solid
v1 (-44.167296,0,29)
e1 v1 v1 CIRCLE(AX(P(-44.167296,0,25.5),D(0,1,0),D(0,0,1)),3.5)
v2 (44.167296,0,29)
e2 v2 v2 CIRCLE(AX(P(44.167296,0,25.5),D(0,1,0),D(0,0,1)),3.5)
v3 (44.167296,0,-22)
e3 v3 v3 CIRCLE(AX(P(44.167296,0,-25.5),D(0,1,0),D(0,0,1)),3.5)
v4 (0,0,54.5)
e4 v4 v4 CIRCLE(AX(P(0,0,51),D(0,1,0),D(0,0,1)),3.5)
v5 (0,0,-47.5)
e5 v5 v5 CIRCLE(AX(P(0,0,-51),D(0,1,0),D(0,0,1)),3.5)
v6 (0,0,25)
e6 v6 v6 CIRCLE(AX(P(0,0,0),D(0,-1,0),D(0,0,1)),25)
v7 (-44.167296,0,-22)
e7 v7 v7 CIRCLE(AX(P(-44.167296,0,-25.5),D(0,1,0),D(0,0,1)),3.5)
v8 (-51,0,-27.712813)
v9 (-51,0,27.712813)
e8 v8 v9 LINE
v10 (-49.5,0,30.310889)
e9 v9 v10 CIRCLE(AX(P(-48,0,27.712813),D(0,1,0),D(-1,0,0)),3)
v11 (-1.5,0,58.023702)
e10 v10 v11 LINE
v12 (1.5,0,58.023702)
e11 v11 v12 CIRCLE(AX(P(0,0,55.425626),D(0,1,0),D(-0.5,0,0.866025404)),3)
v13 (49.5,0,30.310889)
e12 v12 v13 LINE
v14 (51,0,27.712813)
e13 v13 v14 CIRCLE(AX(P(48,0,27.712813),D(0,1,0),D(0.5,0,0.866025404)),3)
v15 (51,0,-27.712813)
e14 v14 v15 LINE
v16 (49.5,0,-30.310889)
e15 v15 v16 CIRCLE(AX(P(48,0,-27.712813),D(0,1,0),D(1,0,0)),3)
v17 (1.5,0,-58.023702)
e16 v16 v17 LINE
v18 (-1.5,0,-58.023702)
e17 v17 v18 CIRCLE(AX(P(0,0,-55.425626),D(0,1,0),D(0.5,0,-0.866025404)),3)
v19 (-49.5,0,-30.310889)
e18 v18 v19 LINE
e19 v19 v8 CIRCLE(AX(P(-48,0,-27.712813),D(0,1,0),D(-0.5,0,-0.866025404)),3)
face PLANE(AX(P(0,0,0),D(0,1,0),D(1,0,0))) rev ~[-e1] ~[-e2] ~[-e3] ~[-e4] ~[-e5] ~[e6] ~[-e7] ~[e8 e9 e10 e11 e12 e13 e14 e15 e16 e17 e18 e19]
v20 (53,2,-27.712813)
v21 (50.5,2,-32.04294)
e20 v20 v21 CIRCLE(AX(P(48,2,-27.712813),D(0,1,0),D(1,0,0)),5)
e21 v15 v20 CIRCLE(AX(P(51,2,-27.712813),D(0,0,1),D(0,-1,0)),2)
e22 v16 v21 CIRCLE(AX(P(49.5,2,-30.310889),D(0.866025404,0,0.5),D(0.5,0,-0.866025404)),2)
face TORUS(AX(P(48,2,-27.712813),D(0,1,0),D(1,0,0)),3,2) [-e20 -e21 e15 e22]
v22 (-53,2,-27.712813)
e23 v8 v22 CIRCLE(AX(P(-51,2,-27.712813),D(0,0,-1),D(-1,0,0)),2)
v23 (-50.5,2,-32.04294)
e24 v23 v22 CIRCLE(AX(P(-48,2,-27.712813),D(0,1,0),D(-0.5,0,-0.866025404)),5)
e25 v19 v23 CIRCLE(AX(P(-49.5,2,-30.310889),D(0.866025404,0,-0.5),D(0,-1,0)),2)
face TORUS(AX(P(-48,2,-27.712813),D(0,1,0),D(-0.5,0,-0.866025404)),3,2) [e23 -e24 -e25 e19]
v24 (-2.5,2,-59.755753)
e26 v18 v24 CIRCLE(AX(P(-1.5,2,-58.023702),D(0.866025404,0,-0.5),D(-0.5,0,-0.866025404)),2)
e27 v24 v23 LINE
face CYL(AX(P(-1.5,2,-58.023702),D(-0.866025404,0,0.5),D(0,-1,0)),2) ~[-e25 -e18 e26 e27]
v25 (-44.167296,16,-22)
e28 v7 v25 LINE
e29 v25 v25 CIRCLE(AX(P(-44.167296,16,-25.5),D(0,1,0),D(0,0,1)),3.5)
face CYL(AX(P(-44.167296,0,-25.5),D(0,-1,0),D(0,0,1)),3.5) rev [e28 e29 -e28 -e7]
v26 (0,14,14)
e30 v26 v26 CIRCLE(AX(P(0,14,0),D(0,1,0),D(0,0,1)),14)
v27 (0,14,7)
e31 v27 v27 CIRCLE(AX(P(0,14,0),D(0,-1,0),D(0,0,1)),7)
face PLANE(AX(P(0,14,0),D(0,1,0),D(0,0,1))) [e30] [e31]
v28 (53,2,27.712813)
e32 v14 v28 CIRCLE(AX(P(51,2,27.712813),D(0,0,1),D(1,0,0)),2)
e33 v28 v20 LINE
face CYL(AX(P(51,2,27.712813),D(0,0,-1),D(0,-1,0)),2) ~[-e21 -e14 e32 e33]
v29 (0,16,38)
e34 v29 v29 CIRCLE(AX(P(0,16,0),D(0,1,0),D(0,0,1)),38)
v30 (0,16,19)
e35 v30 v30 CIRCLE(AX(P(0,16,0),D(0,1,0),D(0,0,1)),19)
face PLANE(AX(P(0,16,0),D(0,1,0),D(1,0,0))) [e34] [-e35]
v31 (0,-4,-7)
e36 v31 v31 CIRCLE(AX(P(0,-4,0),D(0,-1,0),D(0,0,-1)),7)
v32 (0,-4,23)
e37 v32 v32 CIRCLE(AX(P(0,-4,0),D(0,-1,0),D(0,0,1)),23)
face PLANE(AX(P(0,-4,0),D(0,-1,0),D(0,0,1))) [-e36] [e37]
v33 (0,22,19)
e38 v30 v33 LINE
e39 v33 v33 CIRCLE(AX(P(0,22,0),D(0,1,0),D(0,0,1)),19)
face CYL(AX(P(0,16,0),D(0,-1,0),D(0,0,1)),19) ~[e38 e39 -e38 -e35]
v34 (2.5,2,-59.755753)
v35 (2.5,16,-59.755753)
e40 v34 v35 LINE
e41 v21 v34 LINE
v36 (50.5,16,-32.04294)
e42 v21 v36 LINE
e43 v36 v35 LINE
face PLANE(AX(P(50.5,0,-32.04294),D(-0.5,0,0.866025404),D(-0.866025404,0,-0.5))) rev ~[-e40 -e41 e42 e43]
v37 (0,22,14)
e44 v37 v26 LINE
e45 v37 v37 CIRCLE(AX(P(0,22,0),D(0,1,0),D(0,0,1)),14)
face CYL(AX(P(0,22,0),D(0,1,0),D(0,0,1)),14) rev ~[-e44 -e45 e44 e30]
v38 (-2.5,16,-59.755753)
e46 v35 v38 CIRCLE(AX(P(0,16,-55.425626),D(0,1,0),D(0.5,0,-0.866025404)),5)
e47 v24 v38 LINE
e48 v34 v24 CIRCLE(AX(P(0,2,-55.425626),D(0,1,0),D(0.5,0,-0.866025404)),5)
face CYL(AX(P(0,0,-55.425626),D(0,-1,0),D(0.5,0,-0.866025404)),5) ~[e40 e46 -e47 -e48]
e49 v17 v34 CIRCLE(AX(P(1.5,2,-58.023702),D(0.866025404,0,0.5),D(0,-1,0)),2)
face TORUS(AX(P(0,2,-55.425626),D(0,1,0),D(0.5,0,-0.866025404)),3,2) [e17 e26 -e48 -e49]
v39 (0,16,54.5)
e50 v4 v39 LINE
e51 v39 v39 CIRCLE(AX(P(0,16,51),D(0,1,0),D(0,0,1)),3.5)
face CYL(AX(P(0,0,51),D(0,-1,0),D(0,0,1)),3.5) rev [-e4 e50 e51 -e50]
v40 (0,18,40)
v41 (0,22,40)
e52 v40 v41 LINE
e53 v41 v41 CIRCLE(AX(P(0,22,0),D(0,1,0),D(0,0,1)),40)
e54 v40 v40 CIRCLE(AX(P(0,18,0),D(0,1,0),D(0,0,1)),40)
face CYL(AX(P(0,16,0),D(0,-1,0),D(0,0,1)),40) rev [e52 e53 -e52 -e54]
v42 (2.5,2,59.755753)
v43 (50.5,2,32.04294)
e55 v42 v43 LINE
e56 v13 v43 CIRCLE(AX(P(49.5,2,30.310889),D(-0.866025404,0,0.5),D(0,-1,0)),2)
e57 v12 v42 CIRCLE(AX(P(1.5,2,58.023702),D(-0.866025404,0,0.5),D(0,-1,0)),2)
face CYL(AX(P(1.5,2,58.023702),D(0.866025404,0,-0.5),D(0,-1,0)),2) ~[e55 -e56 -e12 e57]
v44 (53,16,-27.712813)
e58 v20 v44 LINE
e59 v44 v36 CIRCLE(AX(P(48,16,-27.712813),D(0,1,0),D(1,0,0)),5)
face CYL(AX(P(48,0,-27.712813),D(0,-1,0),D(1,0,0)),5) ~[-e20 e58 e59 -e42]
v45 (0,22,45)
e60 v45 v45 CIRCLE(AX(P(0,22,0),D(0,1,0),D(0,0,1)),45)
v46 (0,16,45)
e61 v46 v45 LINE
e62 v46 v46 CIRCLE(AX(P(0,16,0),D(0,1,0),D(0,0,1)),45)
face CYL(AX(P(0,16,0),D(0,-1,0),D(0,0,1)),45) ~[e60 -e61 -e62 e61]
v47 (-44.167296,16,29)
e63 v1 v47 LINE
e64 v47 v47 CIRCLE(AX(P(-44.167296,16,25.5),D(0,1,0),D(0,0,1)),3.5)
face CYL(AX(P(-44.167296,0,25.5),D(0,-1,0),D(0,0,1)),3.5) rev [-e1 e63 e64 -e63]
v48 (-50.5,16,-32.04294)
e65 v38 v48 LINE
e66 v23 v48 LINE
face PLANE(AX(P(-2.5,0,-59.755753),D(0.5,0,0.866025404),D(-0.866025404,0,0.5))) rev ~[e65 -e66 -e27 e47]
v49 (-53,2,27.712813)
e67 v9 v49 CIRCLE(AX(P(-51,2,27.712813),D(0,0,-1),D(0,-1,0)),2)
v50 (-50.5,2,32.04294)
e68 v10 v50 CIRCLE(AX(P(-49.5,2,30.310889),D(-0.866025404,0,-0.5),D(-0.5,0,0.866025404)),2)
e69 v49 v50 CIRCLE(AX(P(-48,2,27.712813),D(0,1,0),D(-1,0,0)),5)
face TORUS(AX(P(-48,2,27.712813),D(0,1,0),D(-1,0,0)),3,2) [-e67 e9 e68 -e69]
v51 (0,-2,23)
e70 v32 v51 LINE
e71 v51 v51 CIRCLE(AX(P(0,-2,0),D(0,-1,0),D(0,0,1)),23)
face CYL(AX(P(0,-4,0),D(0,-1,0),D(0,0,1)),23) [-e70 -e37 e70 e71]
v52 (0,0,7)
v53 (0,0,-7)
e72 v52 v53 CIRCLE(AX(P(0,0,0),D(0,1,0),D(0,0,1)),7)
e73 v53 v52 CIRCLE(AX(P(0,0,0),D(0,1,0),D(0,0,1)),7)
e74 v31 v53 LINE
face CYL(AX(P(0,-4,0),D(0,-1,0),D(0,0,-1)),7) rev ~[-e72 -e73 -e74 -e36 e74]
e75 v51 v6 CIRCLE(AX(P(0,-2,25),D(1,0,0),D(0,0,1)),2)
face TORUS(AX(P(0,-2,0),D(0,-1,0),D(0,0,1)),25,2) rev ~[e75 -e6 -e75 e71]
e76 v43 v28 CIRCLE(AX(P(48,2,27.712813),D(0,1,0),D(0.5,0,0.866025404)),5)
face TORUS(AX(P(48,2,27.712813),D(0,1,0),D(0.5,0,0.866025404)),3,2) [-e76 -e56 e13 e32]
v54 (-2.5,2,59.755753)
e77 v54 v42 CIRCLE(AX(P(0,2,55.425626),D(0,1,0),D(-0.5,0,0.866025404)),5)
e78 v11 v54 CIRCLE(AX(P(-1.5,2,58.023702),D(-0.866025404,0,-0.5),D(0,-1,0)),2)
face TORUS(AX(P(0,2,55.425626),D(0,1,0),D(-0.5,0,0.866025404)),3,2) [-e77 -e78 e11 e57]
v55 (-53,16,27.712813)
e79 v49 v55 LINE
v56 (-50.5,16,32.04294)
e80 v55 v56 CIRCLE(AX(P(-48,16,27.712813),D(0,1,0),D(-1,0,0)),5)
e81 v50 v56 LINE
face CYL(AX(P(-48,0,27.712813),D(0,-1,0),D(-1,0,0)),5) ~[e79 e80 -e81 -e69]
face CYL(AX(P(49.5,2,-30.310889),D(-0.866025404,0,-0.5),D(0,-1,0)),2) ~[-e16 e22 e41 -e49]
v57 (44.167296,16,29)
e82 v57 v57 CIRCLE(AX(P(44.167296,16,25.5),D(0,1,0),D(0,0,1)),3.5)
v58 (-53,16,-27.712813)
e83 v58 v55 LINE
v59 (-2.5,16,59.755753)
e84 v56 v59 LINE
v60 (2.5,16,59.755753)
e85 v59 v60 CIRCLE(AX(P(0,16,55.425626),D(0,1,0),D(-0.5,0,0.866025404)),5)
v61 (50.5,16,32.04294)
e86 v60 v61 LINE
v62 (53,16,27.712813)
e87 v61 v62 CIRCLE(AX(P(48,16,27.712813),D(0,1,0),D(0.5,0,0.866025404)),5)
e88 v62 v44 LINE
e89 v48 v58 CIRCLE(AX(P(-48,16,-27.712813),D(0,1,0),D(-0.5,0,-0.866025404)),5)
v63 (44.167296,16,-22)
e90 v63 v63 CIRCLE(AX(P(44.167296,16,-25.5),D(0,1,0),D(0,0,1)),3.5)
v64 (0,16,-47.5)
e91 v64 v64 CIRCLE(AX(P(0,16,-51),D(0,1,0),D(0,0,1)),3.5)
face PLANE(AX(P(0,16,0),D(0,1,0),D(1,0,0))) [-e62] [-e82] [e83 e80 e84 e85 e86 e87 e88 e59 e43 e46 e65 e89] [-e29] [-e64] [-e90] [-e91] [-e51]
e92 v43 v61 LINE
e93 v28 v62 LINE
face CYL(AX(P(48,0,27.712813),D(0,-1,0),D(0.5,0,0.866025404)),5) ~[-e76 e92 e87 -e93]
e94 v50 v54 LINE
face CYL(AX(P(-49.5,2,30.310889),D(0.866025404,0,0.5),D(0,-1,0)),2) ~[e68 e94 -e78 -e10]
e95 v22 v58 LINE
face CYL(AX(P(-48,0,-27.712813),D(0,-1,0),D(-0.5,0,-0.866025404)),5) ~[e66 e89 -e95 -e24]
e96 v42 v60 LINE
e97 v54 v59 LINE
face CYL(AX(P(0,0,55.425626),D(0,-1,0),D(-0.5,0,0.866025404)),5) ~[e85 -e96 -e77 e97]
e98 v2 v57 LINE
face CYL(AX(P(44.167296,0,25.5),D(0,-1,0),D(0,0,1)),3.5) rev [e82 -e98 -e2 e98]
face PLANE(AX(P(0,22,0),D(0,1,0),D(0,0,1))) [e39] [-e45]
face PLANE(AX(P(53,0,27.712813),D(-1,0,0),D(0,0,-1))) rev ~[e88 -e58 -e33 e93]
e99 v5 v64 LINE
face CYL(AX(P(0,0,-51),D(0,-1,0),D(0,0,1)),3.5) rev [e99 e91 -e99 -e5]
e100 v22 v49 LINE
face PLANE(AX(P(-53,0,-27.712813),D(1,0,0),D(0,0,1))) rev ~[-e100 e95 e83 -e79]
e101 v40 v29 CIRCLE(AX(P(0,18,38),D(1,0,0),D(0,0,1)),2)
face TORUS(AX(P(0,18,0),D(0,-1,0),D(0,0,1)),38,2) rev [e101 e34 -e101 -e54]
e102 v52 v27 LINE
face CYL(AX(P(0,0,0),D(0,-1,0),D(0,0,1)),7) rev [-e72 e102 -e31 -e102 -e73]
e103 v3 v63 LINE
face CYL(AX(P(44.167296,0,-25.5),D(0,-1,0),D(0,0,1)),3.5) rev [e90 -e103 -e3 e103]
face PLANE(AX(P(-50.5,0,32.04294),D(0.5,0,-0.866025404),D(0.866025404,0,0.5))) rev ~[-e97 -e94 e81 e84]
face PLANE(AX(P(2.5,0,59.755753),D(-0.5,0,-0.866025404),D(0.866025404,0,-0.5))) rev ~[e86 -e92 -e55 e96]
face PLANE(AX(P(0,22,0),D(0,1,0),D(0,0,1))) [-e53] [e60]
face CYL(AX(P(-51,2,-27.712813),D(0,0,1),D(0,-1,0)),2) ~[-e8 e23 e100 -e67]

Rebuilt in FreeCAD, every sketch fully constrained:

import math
import FreeCAD as App
import Part
import Sketcher
from FreeCAD import Vector
Q = App.Units.Quantity


def edges_at(feature, points):
    """Names of the edges that pass closest to the given points."""
    edges = feature.Shape.Edges
    near = lambda p: min(range(len(edges)), key=lambda i: edges[i].distToShape(Part.Vertex(*p))[0])
    return sorted({f"Edge{near(p) + 1}" for p in points})

doc = App.newDocument("Part")
params = doc.addObject("Spreadsheet::Sheet", "Params")
for row, (alias, value) in enumerate([
    ("sketch1_diameter", "7 mm"),
    ("sketch1_diameter2", "14 mm"),
    ("sketch1_radius", "5 mm"),
    ("pad1_length", "16 mm"),
    ("sketch2_diameter", "90 mm"),
    ("sketch2_diameter2", "80 mm"),
    ("sketch2_diameter3", "38 mm"),
    ("pad2_length", "6 mm"),
    ("sketch3_diameter", "28 mm"),
    ("pocket1_length", "8 mm"),
    ("sketch4_diameter", "46 mm"),
    ("sketch4_diameter2", "14 mm"),
    ("pad3_length", "4 mm"),
    ("fillet_radius", "2 mm"),
], start=1):
    params.set(f"A{row}", alias)
    params.set(f"B{row}", "=" + value)
    params.setAlias(f"B{row}", alias)

body = doc.addObject("PartDesign::Body", "Body")

sketch1 = body.newObject("Sketcher::SketchObject", "Sketch")
sketch1.AttachmentSupport = (doc.getObject("XZ_Plane"), [""])
sketch1.MapMode = "FlatFace"
sketch1.addGeometry(Part.LineSegment(Vector(-2.5, -59.755753, 0), Vector(-50.5, -32.04294, 0)), False)
sketch1.addGeometry(Part.ArcOfCircle(Part.Circle(Vector(-48, -27.712813, 0), Vector(0, 0, 1), 5), math.radians(180), math.radians(240)), False)
sketch1.addGeometry(Part.LineSegment(Vector(-53, -27.712813, 0), Vector(-53, 27.712813, 0)), False)
sketch1.addGeometry(Part.ArcOfCircle(Part.Circle(Vector(-48, 27.712813, 0), Vector(0, 0, 1), 5), math.radians(120), math.radians(180)), False)
sketch1.addGeometry(Part.LineSegment(Vector(-50.5, 32.04294, 0), Vector(-2.5, 59.755753, 0)), False)
sketch1.addGeometry(Part.ArcOfCircle(Part.Circle(Vector(0, 55.425626, 0), Vector(0, 0, 1), 5), math.radians(60), math.radians(120)), False)
sketch1.addGeometry(Part.LineSegment(Vector(2.5, 59.755753, 0), Vector(50.5, 32.04294, 0)), False)
sketch1.addGeometry(Part.ArcOfCircle(Part.Circle(Vector(48, 27.712813, 0), Vector(0, 0, 1), 5), math.radians(0), math.radians(60)), False)
sketch1.addGeometry(Part.LineSegment(Vector(53, 27.712813, 0), Vector(53, -27.712813, 0)), False)
sketch1.addGeometry(Part.ArcOfCircle(Part.Circle(Vector(48, -27.712813, 0), Vector(0, 0, 1), 5), math.radians(-60), math.radians(0)), False)
sketch1.addGeometry(Part.LineSegment(Vector(50.5, -32.04294, 0), Vector(2.5, -59.755753, 0)), False)
sketch1.addGeometry(Part.ArcOfCircle(Part.Circle(Vector(0, -55.425626, 0), Vector(0, 0, 1), 5), math.radians(-120), math.radians(-60)), False)
sketch1.addGeometry(Part.Circle(Vector(-44.167296, 25.5, 0), Vector(0, 0, 1), 3.5), False)
sketch1.addGeometry(Part.Circle(Vector(0, 51, 0), Vector(0, 0, 1), 3.5), False)
sketch1.addGeometry(Part.Circle(Vector(44.167296, 25.5, 0), Vector(0, 0, 1), 3.5), False)
sketch1.addGeometry(Part.Circle(Vector(-44.167296, -25.5, 0), Vector(0, 0, 1), 3.5), False)
sketch1.addGeometry(Part.Circle(Vector(0, 0, 0), Vector(0, 0, 1), 7), False)
sketch1.addGeometry(Part.Circle(Vector(44.167296, -25.5, 0), Vector(0, 0, 1), 3.5), False)
sketch1.addGeometry(Part.Circle(Vector(0, -51, 0), Vector(0, 0, 1), 3.5), False)
sketch1.addConstraint(Sketcher.Constraint("Tangent", 0, 2, 1, 2))
sketch1.addConstraint(Sketcher.Constraint("Tangent", 1, 1, 2, 1))
sketch1.addConstraint(Sketcher.Constraint("Tangent", 2, 2, 3, 2))
sketch1.addConstraint(Sketcher.Constraint("Tangent", 3, 1, 4, 1))
sketch1.addConstraint(Sketcher.Constraint("Tangent", 4, 2, 5, 2))
sketch1.addConstraint(Sketcher.Constraint("Tangent", 5, 1, 6, 1))
sketch1.addConstraint(Sketcher.Constraint("Tangent", 6, 2, 7, 2))
sketch1.addConstraint(Sketcher.Constraint("Tangent", 7, 1, 8, 1))
sketch1.addConstraint(Sketcher.Constraint("Tangent", 8, 2, 9, 2))
sketch1.addConstraint(Sketcher.Constraint("Tangent", 9, 1, 10, 1))
sketch1.addConstraint(Sketcher.Constraint("Tangent", 10, 2, 11, 2))
sketch1.addConstraint(Sketcher.Constraint("Tangent", 11, 1, 0, 1))
sketch1.addConstraint(Sketcher.Constraint("Vertical", 2))
sketch1.addConstraint(Sketcher.Constraint("Vertical", 8))
sketch1.addConstraint(Sketcher.Constraint("Coincident", 16, 3, -1, 1))
sketch1.addConstraint(Sketcher.Constraint("Equal", 1, 3))
sketch1.addConstraint(Sketcher.Constraint("Equal", 3, 5))
sketch1.addConstraint(Sketcher.Constraint("Equal", 5, 7))
sketch1.addConstraint(Sketcher.Constraint("Equal", 7, 9))
sketch1.addConstraint(Sketcher.Constraint("Equal", 9, 11))
sketch1.addConstraint(Sketcher.Constraint("Equal", 12, 13))
sketch1.addConstraint(Sketcher.Constraint("Equal", 13, 14))
sketch1.addConstraint(Sketcher.Constraint("Equal", 14, 15))
sketch1.addConstraint(Sketcher.Constraint("Equal", 15, 17))
sketch1.addConstraint(Sketcher.Constraint("Equal", 17, 18))
sketch1.addConstraint(Sketcher.Constraint("Symmetric", 1, 3, 7, 3, -1, 1))
sketch1.addConstraint(Sketcher.Constraint("Symmetric", 5, 3, 11, 3, -1, 1))
sketch1.addConstraint(Sketcher.Constraint("Symmetric", 14, 3, 15, 3, -1, 1))
sketch1.addConstraint(Sketcher.Constraint("Symmetric", 12, 3, 17, 3, -1, 1))
sketch1.addConstraint(Sketcher.Constraint("Symmetric", 13, 3, 18, 3, -1, 1))
sketch1.addConstraint(Sketcher.Constraint("Symmetric", 12, 3, 14, 3, -2))
sketch1.addConstraint(Sketcher.Constraint("Symmetric", 4, 2, 5, 1, -2))
sketch1.addConstraint(Sketcher.Constraint("PointOnObject", 13, 3, -2))
sketch1.addConstraint(Sketcher.Constraint("Parallel", 4, 10))
sketch1.addConstraint(Sketcher.Constraint("Diameter", 12, Q("7 mm")))
sketch1.addConstraint(Sketcher.Constraint("Diameter", 16, Q("14 mm")))
sketch1.addConstraint(Sketcher.Constraint("Radius", 1, Q("5 mm")))
sketch1.addConstraint(Sketcher.Constraint("Angle", 0, Q("150 deg")))
sketch1.addConstraint(Sketcher.Constraint("DistanceX", 1, 3, -1, 1, Q("48 mm")))
sketch1.addConstraint(Sketcher.Constraint("DistanceY", -1, 1, 13, 3, Q("51 mm")))
sketch1.addConstraint(Sketcher.Constraint("DistanceY", 15, 3, 12, 3, Q("51 mm")))
sketch1.addConstraint(Sketcher.Constraint("DistanceY", 2, 1, 2, 2, Q("55.425626 mm")))
sketch1.addConstraint(Sketcher.Constraint("DistanceX", 12, 3, 14, 3, Q("88.334591 mm")))
sketch1.setExpression("Constraints[34]", "Params.sketch1_diameter")
sketch1.setExpression("Constraints[35]", "Params.sketch1_diameter2")
sketch1.setExpression("Constraints[36]", "Params.sketch1_radius")
pad1 = body.newObject("PartDesign::Pad", "Pad")
pad1.Profile = sketch1
pad1.setExpression("Length", "Params.pad1_length")
pad1.Reversed = True

sketch2 = body.newObject("Sketcher::SketchObject", "Sketch001")
sketch2.AttachmentSupport = (doc.getObject("XZ_Plane"), [""])
sketch2.MapMode = "FlatFace"
sketch2.AttachmentOffset = App.Placement(Vector(0, 0, -16), App.Rotation())
sketch2.addGeometry(Part.Circle(Vector(0, 0, 0), Vector(0, 0, 1), 45), False)
sketch2.addGeometry(Part.Circle(Vector(0, 0, 0), Vector(0, 0, 1), 40), False)
sketch2.addGeometry(Part.Circle(Vector(0, 0, 0), Vector(0, 0, 1), 19), False)
sketch2.addConstraint(Sketcher.Constraint("Coincident", 0, 3, -1, 1))
sketch2.addConstraint(Sketcher.Constraint("Coincident", 1, 3, -1, 1))
sketch2.addConstraint(Sketcher.Constraint("Coincident", 2, 3, -1, 1))
sketch2.addConstraint(Sketcher.Constraint("Diameter", 0, Q("90 mm")))
sketch2.addConstraint(Sketcher.Constraint("Diameter", 1, Q("80 mm")))
sketch2.addConstraint(Sketcher.Constraint("Diameter", 2, Q("38 mm")))
sketch2.setExpression("Constraints[3]", "Params.sketch2_diameter")
sketch2.setExpression("Constraints[4]", "Params.sketch2_diameter2")
sketch2.setExpression("Constraints[5]", "Params.sketch2_diameter3")
pad2 = body.newObject("PartDesign::Pad", "Pad001")
pad2.Profile = sketch2
pad2.setExpression("Length", "Params.pad2_length")
pad2.Reversed = True

sketch3 = body.newObject("Sketcher::SketchObject", "Sketch002")
sketch3.AttachmentSupport = (doc.getObject("XZ_Plane"), [""])
sketch3.MapMode = "FlatFace"
sketch3.AttachmentOffset = App.Placement(Vector(0, 0, -22), App.Rotation())
sketch3.addGeometry(Part.Circle(Vector(0, 0, 0), Vector(0, 0, 1), 14), False)
sketch3.addConstraint(Sketcher.Constraint("Coincident", 0, 3, -1, 1))
sketch3.addConstraint(Sketcher.Constraint("Diameter", 0, Q("28 mm")))
sketch3.setExpression("Constraints[1]", "Params.sketch3_diameter")
pocket1 = body.newObject("PartDesign::Pocket", "Pocket")
pocket1.Profile = sketch3
pocket1.setExpression("Length", "Params.pocket1_length")
pocket1.Reversed = True

sketch4 = body.newObject("Sketcher::SketchObject", "Sketch003")
sketch4.AttachmentSupport = (doc.getObject("XZ_Plane"), [""])
sketch4.MapMode = "FlatFace"
sketch4.AttachmentOffset = App.Placement(Vector(0, 0, 4), App.Rotation())
sketch4.addGeometry(Part.Circle(Vector(0, 0, 0), Vector(0, 0, 1), 23), False)
sketch4.addGeometry(Part.Circle(Vector(0, 0, 0), Vector(0, 0, 1), 7), False)
sketch4.addConstraint(Sketcher.Constraint("Coincident", 0, 3, -1, 1))
sketch4.addConstraint(Sketcher.Constraint("Coincident", 1, 3, -1, 1))
sketch4.addConstraint(Sketcher.Constraint("Diameter", 0, Q("46 mm")))
sketch4.addConstraint(Sketcher.Constraint("Diameter", 1, Q("14 mm")))
sketch4.setExpression("Constraints[2]", "Params.sketch4_diameter")
sketch4.setExpression("Constraints[3]", "Params.sketch4_diameter2")
pad3 = body.newObject("PartDesign::Pad", "Pad002")
pad3.Profile = sketch4
pad3.setExpression("Length", "Params.pad3_length")
pad3.Reversed = True
doc.recompute()

fillet = body.newObject("PartDesign::Fillet", "Fillet")
fillet.Base = (pad3, edges_at(pad3, [
    (26.5, 0, 45.899),
    (0, 0, 60.426),
    (-26.5, 0, 45.899),
    (-52.33, 0, 30.213),
    (-53, 0, 0),
    (-52.33, 0, -30.213),
    (-26.5, 0, -45.899),
    (0, 0, -60.426),
    (26.5, 0, -45.899),
    (52.33, 0, -30.213),
    (53, 0, 0),
    (52.33, 0, 30.213),
    (0, 16, -40),
    (0, 0, -23),
]))
fillet.setExpression("Radius", "Params.fillet_radius")

doc.recompute()
